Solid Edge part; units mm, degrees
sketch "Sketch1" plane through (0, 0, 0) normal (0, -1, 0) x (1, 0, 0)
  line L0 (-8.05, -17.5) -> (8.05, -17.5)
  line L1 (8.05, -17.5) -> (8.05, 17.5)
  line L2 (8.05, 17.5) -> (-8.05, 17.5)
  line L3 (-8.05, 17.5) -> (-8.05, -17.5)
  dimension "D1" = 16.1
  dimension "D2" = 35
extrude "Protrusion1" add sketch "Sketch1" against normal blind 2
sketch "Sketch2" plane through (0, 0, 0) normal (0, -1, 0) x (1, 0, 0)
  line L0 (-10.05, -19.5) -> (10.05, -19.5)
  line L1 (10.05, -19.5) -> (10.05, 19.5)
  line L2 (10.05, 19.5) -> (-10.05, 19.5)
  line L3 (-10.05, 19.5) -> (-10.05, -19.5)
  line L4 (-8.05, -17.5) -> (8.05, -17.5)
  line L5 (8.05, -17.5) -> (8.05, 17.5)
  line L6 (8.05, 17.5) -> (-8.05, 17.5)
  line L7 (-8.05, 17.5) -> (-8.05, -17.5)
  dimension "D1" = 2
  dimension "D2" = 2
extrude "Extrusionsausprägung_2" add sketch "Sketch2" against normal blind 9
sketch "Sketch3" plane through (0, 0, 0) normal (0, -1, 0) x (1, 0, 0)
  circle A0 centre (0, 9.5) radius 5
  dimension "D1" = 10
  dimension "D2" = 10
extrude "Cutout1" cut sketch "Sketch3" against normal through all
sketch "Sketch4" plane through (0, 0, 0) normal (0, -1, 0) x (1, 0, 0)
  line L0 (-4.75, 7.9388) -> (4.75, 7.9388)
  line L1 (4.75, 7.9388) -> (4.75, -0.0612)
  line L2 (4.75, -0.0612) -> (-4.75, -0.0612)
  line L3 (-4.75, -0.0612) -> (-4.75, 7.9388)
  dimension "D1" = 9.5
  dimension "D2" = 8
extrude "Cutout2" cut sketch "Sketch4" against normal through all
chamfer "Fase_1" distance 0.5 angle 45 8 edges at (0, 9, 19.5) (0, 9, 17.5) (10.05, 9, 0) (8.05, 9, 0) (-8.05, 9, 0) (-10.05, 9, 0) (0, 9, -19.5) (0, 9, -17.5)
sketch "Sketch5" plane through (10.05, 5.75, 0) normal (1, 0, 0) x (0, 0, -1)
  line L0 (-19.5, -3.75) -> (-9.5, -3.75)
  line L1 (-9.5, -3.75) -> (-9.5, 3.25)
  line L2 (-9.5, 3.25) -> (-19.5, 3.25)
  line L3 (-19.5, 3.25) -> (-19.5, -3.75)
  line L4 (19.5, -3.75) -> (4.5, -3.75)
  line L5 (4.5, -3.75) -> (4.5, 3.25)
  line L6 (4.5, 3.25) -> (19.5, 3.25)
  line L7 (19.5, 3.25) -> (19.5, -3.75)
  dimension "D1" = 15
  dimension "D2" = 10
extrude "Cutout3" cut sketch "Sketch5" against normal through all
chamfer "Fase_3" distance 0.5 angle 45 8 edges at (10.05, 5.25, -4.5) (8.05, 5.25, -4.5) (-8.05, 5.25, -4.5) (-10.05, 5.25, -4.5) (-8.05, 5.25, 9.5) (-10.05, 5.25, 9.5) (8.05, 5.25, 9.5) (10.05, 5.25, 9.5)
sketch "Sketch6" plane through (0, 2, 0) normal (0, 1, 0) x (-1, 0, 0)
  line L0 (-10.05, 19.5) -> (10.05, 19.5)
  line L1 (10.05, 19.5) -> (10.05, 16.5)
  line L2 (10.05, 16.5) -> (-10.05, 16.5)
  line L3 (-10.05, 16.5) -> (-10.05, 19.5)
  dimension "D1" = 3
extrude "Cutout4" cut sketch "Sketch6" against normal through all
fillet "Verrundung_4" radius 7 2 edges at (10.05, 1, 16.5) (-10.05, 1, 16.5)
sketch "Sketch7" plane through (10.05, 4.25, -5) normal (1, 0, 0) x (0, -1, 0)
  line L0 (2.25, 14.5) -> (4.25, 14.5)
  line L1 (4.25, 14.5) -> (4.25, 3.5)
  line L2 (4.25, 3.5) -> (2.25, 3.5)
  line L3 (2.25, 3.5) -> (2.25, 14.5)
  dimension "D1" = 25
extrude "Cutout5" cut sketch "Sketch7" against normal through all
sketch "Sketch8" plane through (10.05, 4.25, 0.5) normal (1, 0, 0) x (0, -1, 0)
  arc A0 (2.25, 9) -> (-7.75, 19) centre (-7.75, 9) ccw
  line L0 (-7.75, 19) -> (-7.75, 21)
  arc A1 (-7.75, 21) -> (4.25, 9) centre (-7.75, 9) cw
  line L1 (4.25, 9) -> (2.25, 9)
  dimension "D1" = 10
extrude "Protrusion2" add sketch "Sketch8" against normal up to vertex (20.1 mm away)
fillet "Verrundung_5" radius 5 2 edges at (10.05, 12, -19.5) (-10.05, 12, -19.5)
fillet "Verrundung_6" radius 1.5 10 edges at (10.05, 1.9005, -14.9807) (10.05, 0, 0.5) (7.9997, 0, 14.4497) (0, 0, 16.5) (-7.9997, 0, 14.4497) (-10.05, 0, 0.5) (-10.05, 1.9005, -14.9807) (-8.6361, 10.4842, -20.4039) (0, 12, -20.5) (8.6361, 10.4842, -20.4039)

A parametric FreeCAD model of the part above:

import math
import FreeCAD as App
import Part
import Sketcher
from FreeCAD import Vector


def edges_at(feature, points):
    """Names of the edges that pass closest to the given points."""
    edges = feature.Shape.Edges
    near = lambda p: min(range(len(edges)), key=lambda i: edges[i].distToShape(Part.Vertex(*p))[0])
    return sorted({f"Edge{near(p) + 1}" for p in points})

doc = App.newDocument("Part")
body = doc.addObject("PartDesign::Body", "Body")

sketch1 = doc.addObject("Sketcher::SketchObject", "Sketch")
body.addObject(sketch1)
sketch1.AttachmentSupport = (doc.XZ_Plane, [""])
sketch1.MapMode = "FlatFace"
sketch1.addGeometry([
    Part.LineSegment(Vector(-8, 18, 0), Vector(-8, -18, 0)),
    Part.LineSegment(Vector(-8, -18, 0), Vector(8, -18, 0)),
    Part.LineSegment(Vector(8, -18, 0), Vector(8, 18, 0)),
    Part.LineSegment(Vector(8, 18, 0), Vector(-8, 18, 0)),
], False)
sketch1.addConstraint([
    Sketcher.Constraint("Coincident", 0, 2, 1, 1),
    Sketcher.Constraint("Coincident", 1, 2, 2, 1),
    Sketcher.Constraint("Coincident", 2, 2, 3, 1),
    Sketcher.Constraint("Coincident", 3, 2, 0, 1),
    Sketcher.Constraint("Vertical", 0),
    Sketcher.Constraint("Horizontal", 1),
    Sketcher.Constraint("Vertical", 2),
    Sketcher.Constraint("Horizontal", 3),
    Sketcher.Constraint("Symmetric", 0, 2, 2, 2, -1, 1),
    Sketcher.Constraint("DistanceY", 0, 2, 0, 1, 35.0),
    Sketcher.Constraint("DistanceX", 0, 2, -1, 1, 8.05),
])
pad1 = doc.addObject("PartDesign::Pad", "Pad")
body.addObject(pad1)
pad1.Profile = sketch1
pad1.Length = 2
pad1.Reversed = True

sketch2 = doc.addObject("Sketcher::SketchObject", "Sketch001")
body.addObject(sketch2)
sketch2.AttachmentSupport = (doc.XZ_Plane, [""])
sketch2.MapMode = "FlatFace"
sketch2.addGeometry([
    Part.LineSegment(Vector(-10, 20, 0), Vector(-10, -20, 0)),
    Part.LineSegment(Vector(-10, -20, 0), Vector(10, -20, 0)),
    Part.LineSegment(Vector(10, -20, 0), Vector(10, 20, 0)),
    Part.LineSegment(Vector(10, 20, 0), Vector(-10, 20, 0)),
    Part.LineSegment(Vector(8, -18, 0), Vector(-8, -18, 0)),
    Part.LineSegment(Vector(-8, -18, 0), Vector(-8, 18, 0)),
    Part.LineSegment(Vector(-8, 18, 0), Vector(8, 18, 0)),
    Part.LineSegment(Vector(8, 18, 0), Vector(8, -18, 0)),
], False)
sketch2.addConstraint([
    Sketcher.Constraint("Coincident", 0, 2, 1, 1),
    Sketcher.Constraint("Coincident", 1, 2, 2, 1),
    Sketcher.Constraint("Coincident", 2, 2, 3, 1),
    Sketcher.Constraint("Coincident", 3, 2, 0, 1),
    Sketcher.Constraint("Coincident", 4, 2, 5, 1),
    Sketcher.Constraint("Coincident", 5, 2, 6, 1),
    Sketcher.Constraint("Coincident", 6, 2, 7, 1),
    Sketcher.Constraint("Coincident", 7, 2, 4, 1),
    Sketcher.Constraint("Vertical", 0),
    Sketcher.Constraint("Horizontal", 1),
    Sketcher.Constraint("Vertical", 2),
    Sketcher.Constraint("Horizontal", 3),
    Sketcher.Constraint("Horizontal", 4),
    Sketcher.Constraint("Vertical", 5),
    Sketcher.Constraint("Horizontal", 6),
    Sketcher.Constraint("Vertical", 7),
    Sketcher.Constraint("Symmetric", 0, 2, 2, 2, -1, 1),
    Sketcher.Constraint("Symmetric", 4, 2, 6, 2, -1, 1),
    Sketcher.Constraint("DistanceY", 0, 2, 0, 1, 39.0),
    Sketcher.Constraint("DistanceY", 5, 1, 5, 2, 35.0),
    Sketcher.Constraint("DistanceX", 1, 1, 1, 2, 20.1),
    Sketcher.Constraint("DistanceX", 4, 2, 4, 1, 16.1),
])
pad2 = doc.addObject("PartDesign::Pad", "Pad001")
body.addObject(pad2)
pad2.Profile = sketch2
pad2.Length = 9
pad2.Reversed = True

sketch3 = doc.addObject("Sketcher::SketchObject", "Sketch002")
body.addObject(sketch3)
sketch3.AttachmentSupport = (doc.XZ_Plane, [""])
sketch3.MapMode = "FlatFace"
sketch3.addGeometry(Part.Circle(Vector(0, 10, 0), Vector(0, 0, 1), 5), False)
sketch3.addConstraint([
    Sketcher.Constraint("PointOnObject", 0, 3, -2),
    Sketcher.Constraint("Diameter", 0, 10.0),
    Sketcher.Constraint("DistanceY", -1, 1, 0, 3, 9.5),
])
pocket1 = doc.addObject("PartDesign::Pocket", "Pocket")
body.addObject(pocket1)
pocket1.Profile = sketch3
pocket1.Type = "ThroughAll"

sketch4 = doc.addObject("Sketcher::SketchObject", "Sketch003")
body.addObject(sketch4)
sketch4.AttachmentSupport = (doc.XZ_Plane, [""])
sketch4.MapMode = "FlatFace"
sketch4.addGeometry([
    Part.LineSegment(Vector(5, 8, 0), Vector(-5, 8, 0)),
    Part.LineSegment(Vector(-5, 8, 0), Vector(-5, 0, 0)),
    Part.LineSegment(Vector(-5, 0, 0), Vector(5, 0, 0)),
    Part.LineSegment(Vector(5, 0, 0), Vector(5, 8, 0)),
], False)
sketch4.addConstraint([
    Sketcher.Constraint("Coincident", 0, 2, 1, 1),
    Sketcher.Constraint("Coincident", 1, 2, 2, 1),
    Sketcher.Constraint("Coincident", 2, 2, 3, 1),
    Sketcher.Constraint("Coincident", 3, 2, 0, 1),
    Sketcher.Constraint("Horizontal", 0),
    Sketcher.Constraint("Vertical", 1),
    Sketcher.Constraint("Horizontal", 2),
    Sketcher.Constraint("Vertical", 3),
    Sketcher.Constraint("DistanceY", 1, 2, 1, 1, 8.0),
    Sketcher.Constraint("DistanceX", 0, 2, -1, 1, 4.75),
    Sketcher.Constraint("DistanceX", -1, 1, 2, 2, 4.75),
    Sketcher.Constraint("DistanceY", -1, 1, 0, 2, 7.9388),
])
pocket2 = doc.addObject("PartDesign::Pocket", "Pocket001")
body.addObject(pocket2)
pocket2.Profile = sketch4
pocket2.Type = "ThroughAll"
doc.recompute()

chamfer = doc.addObject("PartDesign::Chamfer", "Chamfer")
body.addObject(chamfer)
chamfer.Base = (pocket2, edges_at(pocket2, [
    (0, 9, 19.5),
    (0, 9, 17.5),
    (10.05, 9, 0),
    (8.05, 9, 0),
    (-8.05, 9, 0),
    (-10.05, 9, 0),
    (0, 9, -19.5),
    (0, 9, -17.5),
]))
chamfer.Size = 0.5

sketch5 = doc.addObject("Sketcher::SketchObject", "Sketch004")
body.addObject(sketch5)
sketch5.AttachmentSupport = (doc.YZ_Plane, [""])
sketch5.MapMode = "FlatFace"
sketch5.AttachmentOffset = App.Placement(Vector(0, 0, 10.05), App.Rotation())
sketch5.addGeometry([
    Part.LineSegment(Vector(9, 20, 0), Vector(2, 20, 0)),
    Part.LineSegment(Vector(2, 20, 0), Vector(2, 10, 0)),
    Part.LineSegment(Vector(2, 10, 0), Vector(9, 10, 0)),
    Part.LineSegment(Vector(9, 10, 0), Vector(9, 20, 0)),
    Part.LineSegment(Vector(2, -4, 0), Vector(2, -20, 0)),
    Part.LineSegment(Vector(2, -20, 0), Vector(9, -20, 0)),
    Part.LineSegment(Vector(9, -20, 0), Vector(9, -4, 0)),
    Part.LineSegment(Vector(9, -4, 0), Vector(2, -4, 0)),
], False)
sketch5.addConstraint([
    Sketcher.Constraint("Coincident", 0, 2, 1, 1),
    Sketcher.Constraint("Coincident", 1, 2, 2, 1),
    Sketcher.Constraint("Coincident", 2, 2, 3, 1),
    Sketcher.Constraint("Coincident", 3, 2, 0, 1),
    Sketcher.Constraint("Coincident", 4, 2, 5, 1),
    Sketcher.Constraint("Coincident", 5, 2, 6, 1),
    Sketcher.Constraint("Coincident", 6, 2, 7, 1),
    Sketcher.Constraint("Coincident", 7, 2, 4, 1),
    Sketcher.Constraint("Horizontal", 0),
    Sketcher.Constraint("Vertical", 1),
    Sketcher.Constraint("Horizontal", 2),
    Sketcher.Constraint("Vertical", 3),
    Sketcher.Constraint("Vertical", 4),
    Sketcher.Constraint("Horizontal", 5),
    Sketcher.Constraint("Vertical", 6),
    Sketcher.Constraint("Horizontal", 7),
    Sketcher.Constraint("Symmetric", 0, 2, 4, 2, -1),
    Sketcher.Constraint("Vertical", 3, 2, 5, 2),
    Sketcher.Constraint("DistanceY", -1, 1, 1, 2, 9.5),
    Sketcher.Constraint("DistanceX", 0, 2, 0, 1, 7.0),
    Sketcher.Constraint("DistanceY", 1, 2, 1, 1, 10.0),
    Sketcher.Constraint("DistanceY", 4, 2, 4, 1, 15.0),
    Sketcher.Constraint("DistanceX", -1, 1, 0, 2, 2.0),
])
pocket3 = doc.addObject("PartDesign::Pocket", "Pocket002")
body.addObject(pocket3)
pocket3.Profile = sketch5
pocket3.Type = "ThroughAll"
doc.recompute()

chamfer2 = doc.addObject("PartDesign::Chamfer", "Chamfer001")
body.addObject(chamfer2)
chamfer2.Base = (pocket3, edges_at(pocket3, [
    (10.05, 5.25, -4.5),
    (8.05, 5.25, -4.5),
    (-8.05, 5.25, -4.5),
    (-10.05, 5.25, -4.5),
    (-8.05, 5.25, 9.5),
    (-10.05, 5.25, 9.5),
    (8.05, 5.25, 9.5),
    (10.05, 5.25, 9.5),
]))
chamfer2.Size = 0.5

sketch6 = doc.addObject("Sketcher::SketchObject", "Sketch005")
body.addObject(sketch6)
sketch6.AttachmentSupport = (doc.XZ_Plane, [""])
sketch6.MapMode = "FlatFace"
sketch6.AttachmentOffset = App.Placement(Vector(0, 0, -2), App.Rotation())
sketch6.addGeometry([
    Part.LineSegment(Vector(-10.1, 19.5, 0), Vector(10.1, 19.5, 0)),
    Part.LineSegment(Vector(10.1, 19.5, 0), Vector(10.1, 16.5, 0)),
    Part.LineSegment(Vector(10.1, 16.5, 0), Vector(-10.1, 16.5, 0)),
    Part.LineSegment(Vector(-10.1, 16.5, 0), Vector(-10.1, 19.5, 0)),
], False)
sketch6.addConstraint([
    Sketcher.Constraint("Coincident", 0, 2, 1, 1),
    Sketcher.Constraint("Coincident", 1, 2, 2, 1),
    Sketcher.Constraint("Coincident", 2, 2, 3, 1),
    Sketcher.Constraint("Coincident", 3, 2, 0, 1),
    Sketcher.Constraint("Horizontal", 0),
    Sketcher.Constraint("Vertical", 1),
    Sketcher.Constraint("Horizontal", 2),
    Sketcher.Constraint("Vertical", 3),
    Sketcher.Constraint("DistanceY", 1, 2, 1, 1, 3.0),
    Sketcher.Constraint("DistanceX", -1, 1, 0, 2, 10.05),
    Sketcher.Constraint("DistanceX", 2, 2, -1, 1, 10.05),
    Sketcher.Constraint("DistanceY", -1, 1, 0, 2, 19.5),
])
pocket4 = doc.addObject("PartDesign::Pocket", "Pocket003")
body.addObject(pocket4)
pocket4.Profile = sketch6
pocket4.Type = "ThroughAll"
pocket4.Reversed = True
doc.recompute()

fillet = doc.addObject("PartDesign::Fillet", "Fillet")
body.addObject(fillet)
fillet.Base = (pocket4, edges_at(pocket4, [(10.05, 1, 16.5), (-10.05, 1, 16.5)]))
fillet.Radius = 7

sketch7 = doc.addObject("Sketcher::SketchObject", "Sketch006")
body.addObject(sketch7)
sketch7.AttachmentSupport = (doc.YZ_Plane, [""])
sketch7.MapMode = "FlatFace"
sketch7.AttachmentOffset = App.Placement(Vector(0, 0, 10.05), App.Rotation())
sketch7.addGeometry([
    Part.LineSegment(Vector(0, -19.5, 0), Vector(2, -19.5, 0)),
    Part.LineSegment(Vector(2, -19.5, 0), Vector(2, -8.5, 0)),
    Part.LineSegment(Vector(2, -8.5, 0), Vector(0, -8.5, 0)),
    Part.LineSegment(Vector(0, -8.5, 0), Vector(0, -19.5, 0)),
], False)
sketch7.addConstraint([
    Sketcher.Constraint("Coincident", 0, 2, 1, 1),
    Sketcher.Constraint("Coincident", 1, 2, 2, 1),
    Sketcher.Constraint("Coincident", 2, 2, 3, 1),
    Sketcher.Constraint("Coincident", 3, 2, 0, 1),
    Sketcher.Constraint("Horizontal", 0),
    Sketcher.Constraint("Vertical", 1),
    Sketcher.Constraint("Horizontal", 2),
    Sketcher.Constraint("Vertical", 3),
    Sketcher.Constraint("PointOnObject", 2, 2, -2),
    Sketcher.Constraint("DistanceX", 0, 1, 0, 2, 2.0),
    Sketcher.Constraint("DistanceY", 1, 1, 1, 2, 11.0),
    Sketcher.Constraint("DistanceY", 0, 2, -1, 1, 19.5),
])
pocket5 = doc.addObject("PartDesign::Pocket", "Pocket004")
body.addObject(pocket5)
pocket5.Profile = sketch7
pocket5.Type = "ThroughAll"

sketch8 = doc.addObject("Sketcher::SketchObject", "Sketch007")
body.addObject(sketch8)
sketch8.AttachmentSupport = (doc.YZ_Plane, [""])
sketch8.MapMode = "FlatFace"
sketch8.AttachmentOffset = App.Placement(Vector(0, 0, 10.05), App.Rotation())
sketch8.addGeometry([
    Part.ArcOfCircle(Part.Circle(Vector(12, -8.5, 0), Vector(0, 0, 1), 10), math.radians(180), math.radians(270)),
    Part.LineSegment(Vector(2, -8.5, 0), Vector(0, -8.5, 0)),
    Part.ArcOfCircle(Part.Circle(Vector(12, -8.5, 0), Vector(0, 0, 1), 12), math.radians(180), math.radians(270)),
    Part.LineSegment(Vector(12, -20.5, 0), Vector(12, -18.5, 0)),
], False)
sketch8.addConstraint([
    Sketcher.Constraint("Coincident", 0, 1, 1, 1),
    Sketcher.Constraint("Coincident", 1, 2, 2, 1),
    Sketcher.Constraint("Coincident", 2, 2, 3, 1),
    Sketcher.Constraint("Coincident", 3, 2, 0, 2),
    Sketcher.Constraint("Horizontal", 1),
    Sketcher.Constraint("Vertical", 3),
    Sketcher.Constraint("Coincident", 2, 3, 0, 3),
    Sketcher.Constraint("PointOnObject", 1, 2, -2),
    Sketcher.Constraint("Horizontal", 2, 3, 0, 1),
    Sketcher.Constraint("Vertical", 0, 3, 2, 2),
    Sketcher.Constraint("Radius", 0, 10.0),
    Sketcher.Constraint("Radius", 2, 12.0),
    Sketcher.Constraint("DistanceY", 0, 3, -1, 1, 8.5),
])
pad3 = doc.addObject("PartDesign::Pad", "Pad002")
body.addObject(pad3)
pad3.Profile = sketch8
pad3.Length = 20.1
pad3.Reversed = True
doc.recompute()

fillet2 = doc.addObject("PartDesign::Fillet", "Fillet001")
body.addObject(fillet2)
fillet2.Base = (pad3, edges_at(pad3, [(10.05, 12, -19.5), (-10.05, 12, -19.5)]))
fillet2.Radius = 5
doc.recompute()

fillet3 = doc.addObject("PartDesign::Fillet", "Fillet002")
body.addObject(fillet3)
fillet3.Base = (fillet2, edges_at(fillet2, [
    (10.05, 1.901, -14.981),
    (10.05, 0, 0.5),
    (8, 0, 14.45),
    (0, 0, 16.5),
    (-8, 0, 14.45),
    (-10.05, 0, 0.5),
    (-10.05, 1.901, -14.981),
    (-8.636, 10.484, -20.404),
    (0, 12, -20.5),
    (8.636, 10.484, -20.404),
]))
fillet3.Radius = 1.5

doc.recompute()
